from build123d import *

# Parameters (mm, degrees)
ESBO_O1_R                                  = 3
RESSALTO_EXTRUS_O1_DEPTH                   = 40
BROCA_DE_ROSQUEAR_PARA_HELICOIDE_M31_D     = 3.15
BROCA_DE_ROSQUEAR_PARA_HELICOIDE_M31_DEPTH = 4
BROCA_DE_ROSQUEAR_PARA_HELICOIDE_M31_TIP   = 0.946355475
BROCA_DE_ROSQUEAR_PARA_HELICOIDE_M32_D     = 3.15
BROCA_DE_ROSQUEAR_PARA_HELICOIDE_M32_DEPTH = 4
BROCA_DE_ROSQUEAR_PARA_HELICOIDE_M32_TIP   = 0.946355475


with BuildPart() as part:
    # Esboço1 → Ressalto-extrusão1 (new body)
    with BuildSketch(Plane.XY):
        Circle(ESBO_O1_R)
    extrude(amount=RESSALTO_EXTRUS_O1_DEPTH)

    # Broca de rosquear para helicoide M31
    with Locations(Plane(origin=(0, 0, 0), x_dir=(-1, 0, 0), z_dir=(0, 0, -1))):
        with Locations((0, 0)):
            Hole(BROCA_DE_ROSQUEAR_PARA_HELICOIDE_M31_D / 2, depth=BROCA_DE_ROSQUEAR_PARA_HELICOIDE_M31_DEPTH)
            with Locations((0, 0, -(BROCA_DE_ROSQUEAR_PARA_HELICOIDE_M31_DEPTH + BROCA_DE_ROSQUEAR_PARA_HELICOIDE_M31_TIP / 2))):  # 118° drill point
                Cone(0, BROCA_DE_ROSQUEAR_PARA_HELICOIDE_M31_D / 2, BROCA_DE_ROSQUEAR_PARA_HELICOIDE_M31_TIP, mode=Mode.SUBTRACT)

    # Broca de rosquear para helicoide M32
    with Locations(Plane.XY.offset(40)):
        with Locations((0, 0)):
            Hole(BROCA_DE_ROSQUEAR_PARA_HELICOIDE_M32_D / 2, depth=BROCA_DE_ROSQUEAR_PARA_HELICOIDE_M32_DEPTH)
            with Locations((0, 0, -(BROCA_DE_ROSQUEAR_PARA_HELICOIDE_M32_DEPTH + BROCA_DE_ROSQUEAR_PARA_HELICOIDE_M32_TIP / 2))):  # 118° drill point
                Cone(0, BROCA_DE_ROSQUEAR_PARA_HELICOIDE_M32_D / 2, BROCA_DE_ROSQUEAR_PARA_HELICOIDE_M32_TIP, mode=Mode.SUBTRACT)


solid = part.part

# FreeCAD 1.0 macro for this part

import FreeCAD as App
import Part
import Sketcher
from FreeCAD import Vector

doc = App.newDocument("Part")
body = doc.addObject("PartDesign::Body", "Body")

# Sketch on XY plane
sketch1 = body.newObject("Sketcher::SketchObject", "Sketch")
sketch1.AttachmentSupport = (doc.getObject("XY_Plane"), [""])
sketch1.MapMode = "FlatFace"
sketch1.addGeometry(Part.Circle(Vector(0, 0, 0), Vector(0, 0, 1), 3), False)
sketch1.addConstraint(Sketcher.Constraint("Coincident", 0, 3, -1, 1))
sketch1.addConstraint(Sketcher.Constraint("Diameter", 0, 6.0))
pad1 = body.newObject("PartDesign::Pad", "Pad")
pad1.Profile = sketch1
pad1.Length = 40

# Sketch on XY plane
sketch2 = body.newObject("Sketcher::SketchObject", "Sketch001")
sketch2.AttachmentSupport = (doc.getObject("XY_Plane"), [""])
sketch2.MapMode = "FlatFace"
sketch2.addGeometry(Part.Circle(Vector(0, 0, 0), Vector(0, 0, 1), 1.6), False)
sketch2.addConstraint(Sketcher.Constraint("Coincident", 0, 3, -1, 1))
sketch2.addConstraint(Sketcher.Constraint("Diameter", 0, 3.15))
doc.recompute()
hole = body.newObject("PartDesign::Hole", "Hole")
hole.Profile = sketch2
hole.ThreadType = "None"
hole.Diameter = 3.15
hole.DepthType = "Dimension"
hole.Depth = 4
hole.DrillPoint = "Angled"
hole.DrillPointAngle = 118
hole.Reversed = True

# Sketch on XY plane
sketch3 = body.newObject("Sketcher::SketchObject", "Sketch002")
sketch3.AttachmentSupport = (doc.getObject("XY_Plane"), [""])
sketch3.MapMode = "FlatFace"
sketch3.AttachmentOffset = App.Placement(Vector(0, 0, 40), App.Rotation())
sketch3.addGeometry(Part.Circle(Vector(0, 0, 0), Vector(0, 0, 1), 1.6), False)
sketch3.addConstraint(Sketcher.Constraint("Coincident", 0, 3, -1, 1))
sketch3.addConstraint(Sketcher.Constraint("Diameter", 0, 3.15))
doc.recompute()
hole2 = body.newObject("PartDesign::Hole", "Hole001")
hole2.Profile = sketch3
hole2.ThreadType = "None"
hole2.Diameter = 3.15
hole2.DepthType = "Dimension"
hole2.Depth = 4
hole2.DrillPoint = "Angled"
hole2.DrillPointAngle = 118

doc.recompute()
